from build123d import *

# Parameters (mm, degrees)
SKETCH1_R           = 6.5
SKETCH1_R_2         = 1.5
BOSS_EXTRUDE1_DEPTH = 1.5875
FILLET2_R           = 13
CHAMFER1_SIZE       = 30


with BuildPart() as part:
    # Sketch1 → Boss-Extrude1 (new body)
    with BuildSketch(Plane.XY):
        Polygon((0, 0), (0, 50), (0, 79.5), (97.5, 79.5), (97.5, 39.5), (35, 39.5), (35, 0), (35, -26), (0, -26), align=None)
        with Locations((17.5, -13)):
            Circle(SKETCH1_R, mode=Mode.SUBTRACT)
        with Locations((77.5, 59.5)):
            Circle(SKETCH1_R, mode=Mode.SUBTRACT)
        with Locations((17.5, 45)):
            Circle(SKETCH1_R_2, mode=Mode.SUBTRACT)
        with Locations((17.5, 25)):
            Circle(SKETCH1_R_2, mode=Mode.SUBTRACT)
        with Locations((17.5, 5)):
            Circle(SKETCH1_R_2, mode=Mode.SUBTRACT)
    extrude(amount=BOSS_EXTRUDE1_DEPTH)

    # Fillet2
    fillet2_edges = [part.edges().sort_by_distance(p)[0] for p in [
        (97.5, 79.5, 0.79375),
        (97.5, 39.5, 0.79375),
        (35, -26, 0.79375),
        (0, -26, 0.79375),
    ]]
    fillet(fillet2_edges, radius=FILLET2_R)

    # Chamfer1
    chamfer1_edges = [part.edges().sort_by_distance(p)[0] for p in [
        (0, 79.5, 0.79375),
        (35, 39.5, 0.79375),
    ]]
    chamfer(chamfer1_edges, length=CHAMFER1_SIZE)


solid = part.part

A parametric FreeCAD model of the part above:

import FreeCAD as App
import Part
import Sketcher

V = App.Vector


def edges_at(feature, points):
    """Names of the edges that pass closest to the given points."""
    edges = feature.Shape.Edges
    near = lambda p: min(range(len(edges)), key=lambda i: edges[i].distToShape(Part.Vertex(*p))[0])
    return sorted({f"Edge{near(p) + 1}" for p in points})

doc = App.newDocument("Part")
body = doc.addObject("PartDesign::Body", "Body")

# Sketch on XY plane
sketch1 = body.newObject("Sketcher::SketchObject", "Sketch")
sketch1.AttachmentSupport = (doc.getObject("XY_Plane"), [""])
sketch1.MapMode = "FlatFace"
sketch1.addGeometry(Part.LineSegment(V(0, 79.5, 0), V(0, -26, 0)), False)
sketch1.addGeometry(Part.LineSegment(V(0, -26, 0), V(35, -26, 0)), False)
sketch1.addGeometry(Part.LineSegment(V(35, -26, 0), V(35, 39.5, 0)), False)
sketch1.addGeometry(Part.LineSegment(V(35, 39.5, 0), V(97.5, 39.5, 0)), False)
sketch1.addGeometry(Part.LineSegment(V(97.5, 39.5, 0), V(97.5, 79.5, 0)), False)
sketch1.addGeometry(Part.LineSegment(V(97.5, 79.5, 0), V(0, 79.5, 0)), False)
sketch1.addGeometry(Part.Circle(V(17.5, -13, 0), V(0, 0, 1), 6.5), False)
sketch1.addGeometry(Part.Circle(V(17.5, 5, 0), V(0, 0, 1), 1.5), False)
sketch1.addGeometry(Part.Circle(V(77.5, 59.5, 0), V(0, 0, 1), 6.5), False)
sketch1.addGeometry(Part.Circle(V(17.5, 25, 0), V(0, 0, 1), 1.5), False)
sketch1.addGeometry(Part.Circle(V(17.5, 45, 0), V(0, 0, 1), 1.5), False)
sketch1.addConstraint(Sketcher.Constraint("Coincident", 0, 2, 1, 1))
sketch1.addConstraint(Sketcher.Constraint("Coincident", 1, 2, 2, 1))
sketch1.addConstraint(Sketcher.Constraint("Coincident", 2, 2, 3, 1))
sketch1.addConstraint(Sketcher.Constraint("Coincident", 3, 2, 4, 1))
sketch1.addConstraint(Sketcher.Constraint("Coincident", 4, 2, 5, 1))
sketch1.addConstraint(Sketcher.Constraint("Coincident", 5, 2, 0, 1))
sketch1.addConstraint(Sketcher.Constraint("Vertical", 0))
sketch1.addConstraint(Sketcher.Constraint("Horizontal", 1))
sketch1.addConstraint(Sketcher.Constraint("Vertical", 2))
sketch1.addConstraint(Sketcher.Constraint("Horizontal", 3))
sketch1.addConstraint(Sketcher.Constraint("Vertical", 4))
sketch1.addConstraint(Sketcher.Constraint("Horizontal", 5))
sketch1.addConstraint(Sketcher.Constraint("Equal", 6, 8))
sketch1.addConstraint(Sketcher.Constraint("Equal", 7, 9))
sketch1.addConstraint(Sketcher.Constraint("Equal", 9, 10))
sketch1.addConstraint(Sketcher.Constraint("PointOnObject", 0, 2, -2))
sketch1.addConstraint(Sketcher.Constraint("Vertical", 6, 3, 7, 3))
sketch1.addConstraint(Sketcher.Constraint("Vertical", 7, 3, 9, 3))
sketch1.addConstraint(Sketcher.Constraint("Vertical", 9, 3, 10, 3))
sketch1.addConstraint(Sketcher.Constraint("Diameter", 6, 13.0))
sketch1.addConstraint(Sketcher.Constraint("Diameter", 7, 3.0))
sketch1.addConstraint(Sketcher.Constraint("DistanceX", 1, 1, 1, 2, 35.0))
sketch1.addConstraint(Sketcher.Constraint("DistanceY", 4, 1, 4, 2, 40.0))
sketch1.addConstraint(Sketcher.Constraint("DistanceX", 3, 1, 3, 2, 62.5))
sketch1.addConstraint(Sketcher.Constraint("DistanceY", 0, 2, 0, 1, 105.5))
sketch1.addConstraint(Sketcher.Constraint("DistanceY", 6, 3, -1, 1, 13.0))
sketch1.addConstraint(Sketcher.Constraint("DistanceY", -1, 1, 7, 3, 5.0))
sketch1.addConstraint(Sketcher.Constraint("DistanceY", -1, 1, 9, 3, 25.0))
sketch1.addConstraint(Sketcher.Constraint("DistanceY", -1, 1, 10, 3, 45.0))
sketch1.addConstraint(Sketcher.Constraint("DistanceY", 0, 2, -1, 1, 26.0))
sketch1.addConstraint(Sketcher.Constraint("DistanceX", 7, 3, 8, 3, 60.0))
sketch1.addConstraint(Sketcher.Constraint("DistanceY", 2, 2, 8, 3, 20.0))
sketch1.addConstraint(Sketcher.Constraint("DistanceX", 8, 3, 3, 2, 20.0))
pad1 = body.newObject("PartDesign::Pad", "Pad")
pad1.Profile = sketch1
pad1.Length = 1.5875
doc.recompute()

fillet = body.newObject("PartDesign::Fillet", "Fillet")
fillet.Base = (pad1, edges_at(pad1, [
    (97.5, 79.5, 0.794),
    (97.5, 39.5, 0.794),
    (35, -26, 0.794),
    (0, -26, 0.794),
]))
fillet.Radius = 13
doc.recompute()

chamfer = body.newObject("PartDesign::Chamfer", "Chamfer")
chamfer.Base = (fillet, edges_at(fillet, [(0, 79.5, 0.794), (35, 39.5, 0.794)]))
chamfer.Size = 30

doc.recompute()
